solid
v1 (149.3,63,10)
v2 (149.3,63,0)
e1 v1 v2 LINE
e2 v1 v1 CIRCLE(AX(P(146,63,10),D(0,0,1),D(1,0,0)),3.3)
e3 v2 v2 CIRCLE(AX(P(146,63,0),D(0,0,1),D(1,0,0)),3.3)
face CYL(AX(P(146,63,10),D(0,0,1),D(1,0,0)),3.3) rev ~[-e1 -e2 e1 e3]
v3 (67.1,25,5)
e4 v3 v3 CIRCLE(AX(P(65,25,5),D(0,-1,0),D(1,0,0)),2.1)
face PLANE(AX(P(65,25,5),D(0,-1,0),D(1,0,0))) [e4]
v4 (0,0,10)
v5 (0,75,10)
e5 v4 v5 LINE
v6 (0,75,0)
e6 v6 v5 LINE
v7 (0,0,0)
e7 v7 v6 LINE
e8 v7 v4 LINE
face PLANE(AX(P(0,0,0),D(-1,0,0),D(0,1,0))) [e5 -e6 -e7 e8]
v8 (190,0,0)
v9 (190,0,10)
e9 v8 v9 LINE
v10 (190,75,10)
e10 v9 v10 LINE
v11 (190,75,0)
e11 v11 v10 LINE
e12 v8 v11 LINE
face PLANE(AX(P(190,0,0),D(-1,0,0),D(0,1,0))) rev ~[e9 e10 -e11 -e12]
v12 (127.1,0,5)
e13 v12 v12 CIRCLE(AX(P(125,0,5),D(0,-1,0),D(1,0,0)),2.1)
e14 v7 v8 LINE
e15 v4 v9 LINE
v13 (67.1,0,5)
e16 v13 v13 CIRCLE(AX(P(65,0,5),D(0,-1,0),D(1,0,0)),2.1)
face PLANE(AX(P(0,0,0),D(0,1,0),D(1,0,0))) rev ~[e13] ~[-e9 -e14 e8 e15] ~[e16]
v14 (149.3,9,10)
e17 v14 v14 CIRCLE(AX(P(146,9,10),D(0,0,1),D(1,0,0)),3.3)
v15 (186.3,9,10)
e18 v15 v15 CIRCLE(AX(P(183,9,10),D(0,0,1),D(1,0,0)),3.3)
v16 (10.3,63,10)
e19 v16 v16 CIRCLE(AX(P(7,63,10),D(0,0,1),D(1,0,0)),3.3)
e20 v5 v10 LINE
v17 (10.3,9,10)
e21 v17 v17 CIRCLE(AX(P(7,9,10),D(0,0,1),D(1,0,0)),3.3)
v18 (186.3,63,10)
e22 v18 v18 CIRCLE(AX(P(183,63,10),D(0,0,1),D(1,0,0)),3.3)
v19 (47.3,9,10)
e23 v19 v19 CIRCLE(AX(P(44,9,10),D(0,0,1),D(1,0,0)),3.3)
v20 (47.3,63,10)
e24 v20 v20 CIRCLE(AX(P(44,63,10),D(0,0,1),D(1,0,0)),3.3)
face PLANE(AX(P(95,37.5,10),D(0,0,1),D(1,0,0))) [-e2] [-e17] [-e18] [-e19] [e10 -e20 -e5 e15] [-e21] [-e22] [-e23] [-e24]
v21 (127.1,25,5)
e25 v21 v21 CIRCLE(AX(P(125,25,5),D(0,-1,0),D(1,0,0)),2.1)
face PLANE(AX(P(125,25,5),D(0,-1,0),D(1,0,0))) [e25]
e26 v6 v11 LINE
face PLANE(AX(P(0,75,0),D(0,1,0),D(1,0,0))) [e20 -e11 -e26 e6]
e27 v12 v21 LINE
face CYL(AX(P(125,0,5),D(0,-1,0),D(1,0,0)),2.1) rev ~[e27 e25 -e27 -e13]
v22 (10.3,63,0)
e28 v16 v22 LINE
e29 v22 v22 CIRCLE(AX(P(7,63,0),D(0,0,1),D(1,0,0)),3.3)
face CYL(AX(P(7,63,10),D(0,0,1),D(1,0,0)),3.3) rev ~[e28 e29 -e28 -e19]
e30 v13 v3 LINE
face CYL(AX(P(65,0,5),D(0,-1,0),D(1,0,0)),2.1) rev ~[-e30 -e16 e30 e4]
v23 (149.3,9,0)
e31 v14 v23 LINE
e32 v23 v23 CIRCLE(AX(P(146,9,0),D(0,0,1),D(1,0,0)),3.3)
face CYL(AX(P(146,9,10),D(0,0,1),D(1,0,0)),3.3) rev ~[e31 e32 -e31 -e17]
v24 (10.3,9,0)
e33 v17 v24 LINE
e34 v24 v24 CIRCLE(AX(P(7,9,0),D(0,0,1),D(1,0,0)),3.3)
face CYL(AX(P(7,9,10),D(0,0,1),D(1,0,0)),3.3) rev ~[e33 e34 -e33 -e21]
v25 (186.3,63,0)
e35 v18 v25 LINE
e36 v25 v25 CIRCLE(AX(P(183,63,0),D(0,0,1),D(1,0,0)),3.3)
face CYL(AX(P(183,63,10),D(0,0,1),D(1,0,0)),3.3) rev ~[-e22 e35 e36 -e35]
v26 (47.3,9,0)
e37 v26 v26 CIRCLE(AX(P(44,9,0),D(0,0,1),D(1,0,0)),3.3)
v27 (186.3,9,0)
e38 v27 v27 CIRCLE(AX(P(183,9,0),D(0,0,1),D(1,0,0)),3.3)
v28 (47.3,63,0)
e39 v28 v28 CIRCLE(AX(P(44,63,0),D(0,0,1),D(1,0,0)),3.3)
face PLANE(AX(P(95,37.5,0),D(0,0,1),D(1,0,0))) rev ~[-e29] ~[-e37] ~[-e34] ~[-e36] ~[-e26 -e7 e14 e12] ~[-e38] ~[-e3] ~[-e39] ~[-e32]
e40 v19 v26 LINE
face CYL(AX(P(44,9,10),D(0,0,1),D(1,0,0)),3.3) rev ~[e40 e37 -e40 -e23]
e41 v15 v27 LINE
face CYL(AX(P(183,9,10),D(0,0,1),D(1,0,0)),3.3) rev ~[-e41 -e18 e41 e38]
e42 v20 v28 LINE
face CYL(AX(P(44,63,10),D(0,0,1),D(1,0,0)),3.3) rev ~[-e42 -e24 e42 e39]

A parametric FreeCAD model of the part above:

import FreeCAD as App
import Part
import Sketcher
from FreeCAD import Vector


def add_polygon(sketch, points):
    """Adds a closed chain of lines whose ends are joined by coincident constraints."""
    first, n = sketch.GeometryCount, len(points)
    for a, b in zip(points, points[1:] + points[:1]):
        sketch.addGeometry(Part.LineSegment(App.Vector(*a, 0), App.Vector(*b, 0)), False)
    for i in range(n):
        sketch.addConstraint(Sketcher.Constraint("Coincident", first + i, 2, first + (i + 1) % n, 1))

doc = App.newDocument("Part")
params = doc.addObject("Spreadsheet::Sheet", "Params")
for row, (alias, value) in enumerate([
    ("sketch1_width", "190 mm"),
    ("sketch1_height", "75 mm"),
    ("pad1_length", "10 mm"),
    ("sketch2_diameter", "6.6 mm"),
    ("linearpattern_pitch", "37 mm"),
    ("linearpattern2_pitch", "139 mm"),
    ("linearpattern3_pitch", "176 mm"),
    ("sketch3_diameter", "6.6 mm"),
    ("linearpattern4_pitch", "37 mm"),
    ("linearpattern5_pitch", "139 mm"),
    ("linearpattern6_pitch", "176 mm"),
    ("sketch4_diameter", "4.2 mm"),
    ("pocket3_length", "25 mm"),
    ("linearpattern7_pitch", "60 mm"),
], start=1):
    params.set(f"A{row}", alias)
    params.set(f"B{row}", "=" + value)
    params.setAlias(f"B{row}", alias)

body = doc.addObject("PartDesign::Body", "Body")

sketch1 = body.newObject("Sketcher::SketchObject", "Sketch")
sketch1.AttachmentSupport = (doc.getObject("XY_Plane"), [""])
sketch1.MapMode = "FlatFace"
add_polygon(sketch1, [(0, 75), (0, 0), (190, 0), (190, 75)])
sketch1.addConstraint([
    Sketcher.Constraint("Vertical", 0),
    Sketcher.Constraint("Horizontal", 1),
    Sketcher.Constraint("Vertical", 2),
    Sketcher.Constraint("Horizontal", 3),
    Sketcher.Constraint("Coincident", 0, 2, -1, 1),
    Sketcher.Constraint("DistanceX", 1, 1, 1, 2, 190.0),
    Sketcher.Constraint("DistanceY", 0, 2, 0, 1, 75.0),
])
sketch1.setExpression("Constraints[9]", "Params.sketch1_width")
sketch1.setExpression("Constraints[10]", "Params.sketch1_height")
pad1 = body.newObject("PartDesign::Pad", "Pad")
pad1.Profile = sketch1
pad1.setExpression("Length", "Params.pad1_length")

sketch2 = body.newObject("Sketcher::SketchObject", "Sketch001")
sketch2.AttachmentSupport = (doc.getObject("XY_Plane"), [""])
sketch2.MapMode = "FlatFace"
sketch2.AttachmentOffset = App.Placement(Vector(0, 0, 10), App.Rotation())
sketch2.addGeometry(Part.Circle(Vector(7, 9, 0), Vector(0, 0, 1), 3.3), False)
sketch2.addConstraint([
    Sketcher.Constraint("Diameter", 0, 6.6),
    Sketcher.Constraint("DistanceX", -1, 1, 0, 3, 7.0),
    Sketcher.Constraint("DistanceY", -1, 1, 0, 3, 9.0),
])
sketch2.setExpression("Constraints[0]", "Params.sketch2_diameter")
pocket1 = body.newObject("PartDesign::Pocket", "Pocket")
pocket1.Profile = sketch2
pocket1.Type = "ThroughAll"
doc.recompute()

linearpattern = body.newObject("PartDesign::LinearPattern", "LinearPattern")
linearpattern.Originals = [pocket1]
linearpattern.Direction = (doc.getObject("X_Axis"), [""])
linearpattern.Mode = "offset"
linearpattern.setExpression("Offset", "Params.linearpattern_pitch")
linearpattern.Occurrences = 2
body.Tip = linearpattern
doc.recompute()

linearpattern2 = body.newObject("PartDesign::LinearPattern", "LinearPattern001")
linearpattern2.Originals = [pocket1]
linearpattern2.Direction = (doc.getObject("X_Axis"), [""])
linearpattern2.Mode = "offset"
linearpattern2.setExpression("Offset", "Params.linearpattern2_pitch")
linearpattern2.Occurrences = 2
body.Tip = linearpattern2
doc.recompute()

linearpattern3 = body.newObject("PartDesign::LinearPattern", "LinearPattern002")
linearpattern3.Originals = [pocket1]
linearpattern3.Direction = (doc.getObject("X_Axis"), [""])
linearpattern3.Mode = "offset"
linearpattern3.setExpression("Offset", "Params.linearpattern3_pitch")
linearpattern3.Occurrences = 2
body.Tip = linearpattern3

sketch3 = body.newObject("Sketcher::SketchObject", "Sketch002")
sketch3.AttachmentSupport = (doc.getObject("XY_Plane"), [""])
sketch3.MapMode = "FlatFace"
sketch3.AttachmentOffset = App.Placement(Vector(0, 0, 10), App.Rotation())
sketch3.addGeometry(Part.Circle(Vector(7, 63, 0), Vector(0, 0, 1), 3.3), False)
sketch3.addConstraint([
    Sketcher.Constraint("Diameter", 0, 6.6),
    Sketcher.Constraint("DistanceX", -1, 1, 0, 3, 7.0),
    Sketcher.Constraint("DistanceY", -1, 1, 0, 3, 63.0),
])
sketch3.setExpression("Constraints[0]", "Params.sketch3_diameter")
pocket2 = body.newObject("PartDesign::Pocket", "Pocket001")
pocket2.Profile = sketch3
pocket2.Type = "ThroughAll"
doc.recompute()

linearpattern4 = body.newObject("PartDesign::LinearPattern", "LinearPattern003")
linearpattern4.Originals = [pocket2]
linearpattern4.Direction = (doc.getObject("X_Axis"), [""])
linearpattern4.Mode = "offset"
linearpattern4.setExpression("Offset", "Params.linearpattern4_pitch")
linearpattern4.Occurrences = 2
body.Tip = linearpattern4
doc.recompute()

linearpattern5 = body.newObject("PartDesign::LinearPattern", "LinearPattern004")
linearpattern5.Originals = [pocket2]
linearpattern5.Direction = (doc.getObject("X_Axis"), [""])
linearpattern5.Mode = "offset"
linearpattern5.setExpression("Offset", "Params.linearpattern5_pitch")
linearpattern5.Occurrences = 2
body.Tip = linearpattern5
doc.recompute()

linearpattern6 = body.newObject("PartDesign::LinearPattern", "LinearPattern005")
linearpattern6.Originals = [pocket2]
linearpattern6.Direction = (doc.getObject("X_Axis"), [""])
linearpattern6.Mode = "offset"
linearpattern6.setExpression("Offset", "Params.linearpattern6_pitch")
linearpattern6.Occurrences = 2
body.Tip = linearpattern6

sketch4 = body.newObject("Sketcher::SketchObject", "Sketch003")
sketch4.AttachmentSupport = (doc.getObject("XZ_Plane"), [""])
sketch4.MapMode = "FlatFace"
sketch4.addGeometry(Part.Circle(Vector(65, 5, 0), Vector(0, 0, 1), 2.1), False)
sketch4.addConstraint([
    Sketcher.Constraint("Diameter", 0, 4.2),
    Sketcher.Constraint("DistanceX", -1, 1, 0, 3, 65.0),
    Sketcher.Constraint("DistanceY", -1, 1, 0, 3, 5.0),
])
sketch4.setExpression("Constraints[0]", "Params.sketch4_diameter")
pocket3 = body.newObject("PartDesign::Pocket", "Pocket002")
pocket3.Profile = sketch4
pocket3.setExpression("Length", "Params.pocket3_length")
doc.recompute()

linearpattern7 = body.newObject("PartDesign::LinearPattern", "LinearPattern006")
linearpattern7.Originals = [pocket3]
linearpattern7.Direction = (doc.getObject("X_Axis"), [""])
linearpattern7.Mode = "offset"
linearpattern7.setExpression("Offset", "Params.linearpattern7_pitch")
linearpattern7.Occurrences = 2
body.Tip = linearpattern7

doc.recompute()
